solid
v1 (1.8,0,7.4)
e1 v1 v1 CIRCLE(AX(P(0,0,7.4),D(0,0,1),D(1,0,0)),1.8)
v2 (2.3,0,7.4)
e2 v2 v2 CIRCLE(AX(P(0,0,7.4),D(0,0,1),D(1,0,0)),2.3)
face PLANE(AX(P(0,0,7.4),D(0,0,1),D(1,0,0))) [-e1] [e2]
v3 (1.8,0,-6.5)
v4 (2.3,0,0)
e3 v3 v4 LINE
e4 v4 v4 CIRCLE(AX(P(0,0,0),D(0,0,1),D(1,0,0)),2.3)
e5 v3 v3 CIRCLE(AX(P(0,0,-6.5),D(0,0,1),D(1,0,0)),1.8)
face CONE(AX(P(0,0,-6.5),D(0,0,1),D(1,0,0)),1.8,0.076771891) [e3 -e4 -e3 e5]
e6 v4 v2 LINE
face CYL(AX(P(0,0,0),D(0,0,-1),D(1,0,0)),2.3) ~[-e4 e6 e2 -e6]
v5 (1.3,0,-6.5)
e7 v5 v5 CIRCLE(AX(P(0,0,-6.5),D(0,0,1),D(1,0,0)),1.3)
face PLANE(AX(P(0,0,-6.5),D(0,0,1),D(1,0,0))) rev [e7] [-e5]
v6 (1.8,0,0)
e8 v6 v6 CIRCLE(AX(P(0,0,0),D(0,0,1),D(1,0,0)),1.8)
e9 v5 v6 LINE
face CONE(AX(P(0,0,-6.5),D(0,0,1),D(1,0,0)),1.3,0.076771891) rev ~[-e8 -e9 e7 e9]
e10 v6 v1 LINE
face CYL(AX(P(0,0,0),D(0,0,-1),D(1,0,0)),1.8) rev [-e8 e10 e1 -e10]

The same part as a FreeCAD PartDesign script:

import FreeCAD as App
import Part
import Sketcher

doc = App.newDocument("Part")
body = doc.addObject("PartDesign::Body", "Body")

# Sketch on XZ plane
sketch1 = doc.addObject("Sketcher::SketchObject", "Sketch")
body.addObject(sketch1)
sketch1.AttachmentSupport = (doc.XZ_Plane, [""])
sketch1.MapMode = "FlatFace"
sketch1.addGeometry(Part.LineSegment(App.Vector(0, -6.5, 0), App.Vector(1.3, -6.5, 0)), False)
sketch1.addGeometry(Part.LineSegment(App.Vector(1.3, -6.5, 0), App.Vector(1.8, 0, 0)), False)
sketch1.addGeometry(Part.LineSegment(App.Vector(1.8, 0, 0), App.Vector(0, 0, 0)), False)
sketch1.addGeometry(Part.LineSegment(App.Vector(0, 0, 0), App.Vector(0, -6.5, 0)), False)
sketch1.addConstraint(Sketcher.Constraint("Coincident", 0, 2, 1, 1))
sketch1.addConstraint(Sketcher.Constraint("Coincident", 1, 2, 2, 1))
sketch1.addConstraint(Sketcher.Constraint("Coincident", 2, 2, 3, 1))
sketch1.addConstraint(Sketcher.Constraint("Coincident", 3, 2, 0, 1))
sketch1.addConstraint(Sketcher.Constraint("Horizontal", 0))
sketch1.addConstraint(Sketcher.Constraint("Horizontal", 2))
sketch1.addConstraint(Sketcher.Constraint("Vertical", 3))
sketch1.addConstraint(Sketcher.Constraint("Coincident", 2, 2, -1, 1))
sketch1.addConstraint(Sketcher.Constraint("DistanceX", 0, 1, 0, 2, 1.3))
sketch1.addConstraint(Sketcher.Constraint("DistanceX", 2, 2, 2, 1, 1.8))
sketch1.addConstraint(Sketcher.Constraint("DistanceY", 3, 2, 3, 1, 6.5))
revolution = doc.addObject("PartDesign::Revolution", "Revolution")
body.addObject(revolution)
revolution.Profile = sketch1
revolution.ReferenceAxis = (sketch1, ["V_Axis"])
revolution.Angle = 360
body2 = doc.addObject("PartDesign::Body", "Body001")

# Sketch on XY plane
sketch2 = doc.addObject("Sketcher::SketchObject", "Sketch001")
body2.addObject(sketch2)
sketch2.AttachmentSupport = (doc.getObject("XY_Plane001"), [""])
sketch2.MapMode = "FlatFace"
sketch2.addGeometry(Part.Circle(App.Vector(0, 0, 0), App.Vector(0, 0, 1), 1.8), False)
sketch2.addConstraint(Sketcher.Constraint("Coincident", 0, 3, -1, 1))
sketch2.addConstraint(Sketcher.Constraint("Diameter", 0, 3.6))
pad1 = doc.addObject("PartDesign::Pad", "Pad")
body2.addObject(pad1)
pad1.Profile = sketch2
pad1.Length = 7.4
doc.recompute()

boolean = doc.addObject("PartDesign::Boolean", "Boolean")
body2.addObject(boolean)
boolean.Type = "Fuse"
boolean.addObjects([body])
body3 = doc.addObject("PartDesign::Body", "Body002")

# Sketch on XZ plane
sketch3 = doc.addObject("Sketcher::SketchObject", "Sketch002")
body3.addObject(sketch3)
sketch3.AttachmentSupport = (doc.getObject("XZ_Plane002"), [""])
sketch3.MapMode = "FlatFace"
sketch3.addGeometry(Part.LineSegment(App.Vector(0, -6.5, 0), App.Vector(1.8, -6.5, 0)), False)
sketch3.addGeometry(Part.LineSegment(App.Vector(1.8, -6.5, 0), App.Vector(2.3, 0, 0)), False)
sketch3.addGeometry(Part.LineSegment(App.Vector(2.3, 0, 0), App.Vector(0, 0, 0)), False)
sketch3.addGeometry(Part.LineSegment(App.Vector(0, 0, 0), App.Vector(0, -6.5, 0)), False)
sketch3.addConstraint(Sketcher.Constraint("Coincident", 0, 2, 1, 1))
sketch3.addConstraint(Sketcher.Constraint("Coincident", 1, 2, 2, 1))
sketch3.addConstraint(Sketcher.Constraint("Coincident", 2, 2, 3, 1))
sketch3.addConstraint(Sketcher.Constraint("Coincident", 3, 2, 0, 1))
sketch3.addConstraint(Sketcher.Constraint("Horizontal", 0))
sketch3.addConstraint(Sketcher.Constraint("Horizontal", 2))
sketch3.addConstraint(Sketcher.Constraint("Vertical", 3))
sketch3.addConstraint(Sketcher.Constraint("Coincident", 2, 2, -1, 1))
sketch3.addConstraint(Sketcher.Constraint("DistanceX", 0, 1, 0, 2, 1.8))
sketch3.addConstraint(Sketcher.Constraint("DistanceX", 2, 2, 2, 1, 2.3))
sketch3.addConstraint(Sketcher.Constraint("DistanceY", 3, 2, 3, 1, 6.5))
revolution2 = doc.addObject("PartDesign::Revolution", "Revolution001")
body3.addObject(revolution2)
revolution2.Profile = sketch3
revolution2.ReferenceAxis = (sketch3, ["V_Axis"])
revolution2.Angle = 360
body4 = doc.addObject("PartDesign::Body", "Body003")

# Sketch on XY plane
sketch4 = doc.addObject("Sketcher::SketchObject", "Sketch003")
body4.addObject(sketch4)
sketch4.AttachmentSupport = (doc.getObject("XY_Plane003"), [""])
sketch4.MapMode = "FlatFace"
sketch4.addGeometry(Part.Circle(App.Vector(0, 0, 0), App.Vector(0, 0, 1), 2.3), False)
sketch4.addConstraint(Sketcher.Constraint("Coincident", 0, 3, -1, 1))
sketch4.addConstraint(Sketcher.Constraint("Diameter", 0, 4.6))
pad2 = doc.addObject("PartDesign::Pad", "Pad001")
body4.addObject(pad2)
pad2.Profile = sketch4
pad2.Length = 7.4
doc.recompute()

boolean2 = doc.addObject("PartDesign::Boolean", "Boolean001")
body4.addObject(boolean2)
boolean2.Type = "Fuse"
boolean2.addObjects([body3])
doc.recompute()

boolean3 = doc.addObject("PartDesign::Boolean", "Boolean002")
body4.addObject(boolean3)
boolean3.Type = "Cut"
boolean3.addObjects([body2])

doc.recompute()
